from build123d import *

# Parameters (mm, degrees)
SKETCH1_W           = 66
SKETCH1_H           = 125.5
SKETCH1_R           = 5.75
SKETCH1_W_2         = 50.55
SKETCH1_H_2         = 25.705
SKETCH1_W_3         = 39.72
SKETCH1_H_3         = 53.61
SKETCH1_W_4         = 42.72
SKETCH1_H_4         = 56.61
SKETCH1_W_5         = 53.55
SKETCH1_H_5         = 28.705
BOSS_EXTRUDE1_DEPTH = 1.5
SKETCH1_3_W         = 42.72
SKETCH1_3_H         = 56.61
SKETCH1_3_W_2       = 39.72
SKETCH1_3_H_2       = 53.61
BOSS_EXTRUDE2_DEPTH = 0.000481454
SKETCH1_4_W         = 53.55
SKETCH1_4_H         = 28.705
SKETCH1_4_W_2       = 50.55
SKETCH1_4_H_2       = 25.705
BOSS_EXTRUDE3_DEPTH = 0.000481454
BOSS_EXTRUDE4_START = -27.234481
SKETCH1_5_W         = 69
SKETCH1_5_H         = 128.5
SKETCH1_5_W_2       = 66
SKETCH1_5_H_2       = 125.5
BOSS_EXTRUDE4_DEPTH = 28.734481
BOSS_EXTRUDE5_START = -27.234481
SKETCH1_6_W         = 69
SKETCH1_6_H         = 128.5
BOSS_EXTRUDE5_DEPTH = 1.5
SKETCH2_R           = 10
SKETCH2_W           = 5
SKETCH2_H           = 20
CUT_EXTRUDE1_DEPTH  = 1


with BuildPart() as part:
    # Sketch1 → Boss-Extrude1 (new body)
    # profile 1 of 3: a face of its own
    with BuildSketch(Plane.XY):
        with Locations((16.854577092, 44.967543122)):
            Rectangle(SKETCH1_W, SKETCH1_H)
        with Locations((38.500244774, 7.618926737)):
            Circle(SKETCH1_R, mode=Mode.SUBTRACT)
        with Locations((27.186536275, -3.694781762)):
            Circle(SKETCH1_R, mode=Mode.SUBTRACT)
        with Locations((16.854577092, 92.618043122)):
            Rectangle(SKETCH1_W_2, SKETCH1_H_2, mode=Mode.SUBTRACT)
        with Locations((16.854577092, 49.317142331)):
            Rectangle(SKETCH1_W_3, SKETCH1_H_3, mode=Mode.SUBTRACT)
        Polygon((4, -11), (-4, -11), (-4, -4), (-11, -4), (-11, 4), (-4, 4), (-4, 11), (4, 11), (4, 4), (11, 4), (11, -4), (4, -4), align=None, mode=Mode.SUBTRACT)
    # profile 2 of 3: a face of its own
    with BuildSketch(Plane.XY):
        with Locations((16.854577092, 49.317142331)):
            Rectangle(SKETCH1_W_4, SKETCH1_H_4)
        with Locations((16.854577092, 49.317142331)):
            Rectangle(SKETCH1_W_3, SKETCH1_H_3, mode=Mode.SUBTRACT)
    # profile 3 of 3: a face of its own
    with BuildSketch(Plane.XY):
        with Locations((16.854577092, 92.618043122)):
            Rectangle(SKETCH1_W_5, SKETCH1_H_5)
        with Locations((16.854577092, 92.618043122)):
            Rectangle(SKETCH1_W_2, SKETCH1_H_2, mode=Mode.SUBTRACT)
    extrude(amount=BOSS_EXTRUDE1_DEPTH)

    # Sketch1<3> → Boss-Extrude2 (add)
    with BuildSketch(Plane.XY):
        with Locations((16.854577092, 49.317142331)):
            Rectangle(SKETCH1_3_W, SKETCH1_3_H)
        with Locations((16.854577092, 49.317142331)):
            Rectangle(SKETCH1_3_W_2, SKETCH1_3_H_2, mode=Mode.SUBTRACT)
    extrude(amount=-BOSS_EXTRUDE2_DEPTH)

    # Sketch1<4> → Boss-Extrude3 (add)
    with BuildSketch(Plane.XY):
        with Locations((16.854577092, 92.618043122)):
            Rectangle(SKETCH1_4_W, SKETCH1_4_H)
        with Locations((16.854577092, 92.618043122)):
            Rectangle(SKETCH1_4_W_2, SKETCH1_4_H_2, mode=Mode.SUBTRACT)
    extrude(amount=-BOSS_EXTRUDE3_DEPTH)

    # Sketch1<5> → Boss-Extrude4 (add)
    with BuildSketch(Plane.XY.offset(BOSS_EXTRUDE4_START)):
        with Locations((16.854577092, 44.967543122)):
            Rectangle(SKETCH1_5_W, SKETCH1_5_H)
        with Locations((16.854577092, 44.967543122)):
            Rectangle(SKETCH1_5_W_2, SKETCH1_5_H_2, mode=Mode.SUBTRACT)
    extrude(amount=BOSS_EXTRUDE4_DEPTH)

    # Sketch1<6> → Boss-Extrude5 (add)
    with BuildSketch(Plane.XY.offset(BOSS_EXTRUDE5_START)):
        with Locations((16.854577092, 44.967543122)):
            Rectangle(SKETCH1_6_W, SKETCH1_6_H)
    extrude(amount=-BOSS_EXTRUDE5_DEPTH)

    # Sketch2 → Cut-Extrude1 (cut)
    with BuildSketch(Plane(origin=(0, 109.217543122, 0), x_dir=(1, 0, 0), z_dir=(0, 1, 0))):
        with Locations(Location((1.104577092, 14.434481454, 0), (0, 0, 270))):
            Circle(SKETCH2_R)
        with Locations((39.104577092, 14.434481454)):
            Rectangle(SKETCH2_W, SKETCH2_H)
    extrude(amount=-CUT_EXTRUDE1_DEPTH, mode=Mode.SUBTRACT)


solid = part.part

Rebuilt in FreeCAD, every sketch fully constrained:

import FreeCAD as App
import Part
import Sketcher


def add_polygon(sketch, points):
    """Adds a closed chain of lines whose ends are joined by coincident constraints."""
    first, n = sketch.GeometryCount, len(points)
    for a, b in zip(points, points[1:] + points[:1]):
        sketch.addGeometry(Part.LineSegment(App.Vector(*a, 0), App.Vector(*b, 0)), False)
    for i in range(n):
        sketch.addConstraint(Sketcher.Constraint("Coincident", first + i, 2, first + (i + 1) % n, 1))

doc = App.newDocument("Part")
body = doc.addObject("PartDesign::Body", "Body")

# Sketch on XY plane
sketch1 = doc.addObject("Sketcher::SketchObject", "Sketch")
body.addObject(sketch1)
sketch1.AttachmentSupport = (doc.XY_Plane, [""])
sketch1.MapMode = "FlatFace"
add_polygon(sketch1, [(-16, 108), (-16, -18), (50, -18), (50, 108)])  # lines 0-3
add_polygon(sketch1, [(4, -4), (4, -11), (-4, -11), (-4, -4), (-11, -4), (-11, 4), (-4, 4), (-4, 11), (4, 11), (4, 4), (11, 4), (11, -4)])  # lines 4-15
sketch1.addGeometry(Part.Circle(App.Vector(27, -4, 0), App.Vector(0, 0, 1), 6), False)  # 16
sketch1.addGeometry(Part.Circle(App.Vector(39, 8, 0), App.Vector(0, 0, 1), 6), False)  # 17
add_polygon(sketch1, [(37, 23), (-3, 23), (-3, 76), (37, 76)])  # lines 18-21
add_polygon(sketch1, [(42, 80), (-8, 80), (-8, 105), (42, 105)])  # lines 22-25
sketch1.addConstraint([
    Sketcher.Constraint("Vertical", 0),
    Sketcher.Constraint("Horizontal", 1),
    Sketcher.Constraint("Vertical", 2),
    Sketcher.Constraint("Horizontal", 3),
    Sketcher.Constraint("Vertical", 4),
    Sketcher.Constraint("Horizontal", 5),
    Sketcher.Constraint("Vertical", 6),
    Sketcher.Constraint("Horizontal", 7),
    Sketcher.Constraint("Vertical", 8),
    Sketcher.Constraint("Horizontal", 9),
    Sketcher.Constraint("Vertical", 10),
    Sketcher.Constraint("Horizontal", 11),
    Sketcher.Constraint("Vertical", 12),
    Sketcher.Constraint("Horizontal", 13),
    Sketcher.Constraint("Vertical", 14),
    Sketcher.Constraint("Horizontal", 15),
    Sketcher.Constraint("Horizontal", 18),
    Sketcher.Constraint("Vertical", 19),
    Sketcher.Constraint("Horizontal", 20),
    Sketcher.Constraint("Vertical", 21),
    Sketcher.Constraint("Horizontal", 22),
    Sketcher.Constraint("Vertical", 23),
    Sketcher.Constraint("Horizontal", 24),
    Sketcher.Constraint("Vertical", 25),
    Sketcher.Constraint("Equal", 16, 17),
    Sketcher.Constraint("Symmetric", 4, 2, 10, 2, -1, 1),
    Sketcher.Constraint("Symmetric", 6, 2, 12, 2, -1, 1),
    Sketcher.Constraint("Symmetric", 8, 2, 14, 2, -1, 1),
    Sketcher.Constraint("Symmetric", 9, 2, 12, 2, -2),
    Sketcher.Constraint("Equal", 15, 4),
    Sketcher.Constraint("Equal", 11, 8),
    Sketcher.Constraint("Diameter", 16, 11.5),
    Sketcher.Constraint("DistanceX", 1, 1, 1, 2, 66.0),
    Sketcher.Constraint("DistanceX", 5, 2, 5, 1, 8.0),
    Sketcher.Constraint("DistanceX", 7, 2, 7, 1, 7.0),
    Sketcher.Constraint("DistanceY", 0, 2, 0, 1, 125.5),
    Sketcher.Constraint("DistanceX", 18, 2, 18, 1, 39.72),
    Sketcher.Constraint("DistanceX", 22, 2, 22, 1, 50.55),
    Sketcher.Constraint("DistanceY", 19, 1, 19, 2, 53.61),
    Sketcher.Constraint("DistanceY", 23, 1, 23, 2, 25.705),
    Sketcher.Constraint("DistanceX", 3, 2, 19, 2, 13.14),
    Sketcher.Constraint("DistanceX", 22, 2, 19, 2, 5.415),
    Sketcher.Constraint("DistanceY", 22, 2, 3, 2, 27.952),
    Sketcher.Constraint("DistanceY", 19, 2, 3, 2, 31.595401),
    Sketcher.Constraint("DistanceY", 16, 3, -1, 1, 3.694782),
    Sketcher.Constraint("DistanceX", 16, 3, 17, 3, 11.313708),
    Sketcher.Constraint("DistanceY", 16, 3, 17, 3, 11.313708),
    Sketcher.Constraint("DistanceX", 0, 2, 16, 3, 43.331959),
    Sketcher.Constraint("DistanceX", -1, 1, 16, 3, 27.186536),
    Sketcher.Constraint("DistanceY", 0, 2, -1, 1, 17.782457),
])
pad1 = doc.addObject("PartDesign::Pad", "Pad")
body.addObject(pad1)
pad1.Profile = sketch1
pad1.Length = 1.5

# Sketch on XY plane
sketch2 = doc.addObject("Sketcher::SketchObject", "Sketch001")
body.addObject(sketch2)
sketch2.AttachmentSupport = (doc.XY_Plane, [""])
sketch2.MapMode = "FlatFace"
add_polygon(sketch2, [(-5, 78), (-5, 21), (38, 21), (38, 78)])  # lines 0-3
add_polygon(sketch2, [(37, 23), (-3, 23), (-3, 76), (37, 76)])  # lines 4-7
sketch2.addConstraint([
    Sketcher.Constraint("Vertical", 0),
    Sketcher.Constraint("Horizontal", 1),
    Sketcher.Constraint("Vertical", 2),
    Sketcher.Constraint("Horizontal", 3),
    Sketcher.Constraint("Horizontal", 4),
    Sketcher.Constraint("Vertical", 5),
    Sketcher.Constraint("Horizontal", 6),
    Sketcher.Constraint("Vertical", 7),
    Sketcher.Constraint("DistanceX", 1, 1, 1, 2, 42.72),
    Sketcher.Constraint("DistanceX", 4, 2, 4, 1, 39.72),
    Sketcher.Constraint("DistanceY", 0, 2, 0, 1, 56.61),
    Sketcher.Constraint("DistanceY", 5, 1, 5, 2, 53.61),
    Sketcher.Constraint("DistanceX", 0, 2, 4, 2, 1.5),
    Sketcher.Constraint("DistanceY", 0, 2, 4, 2, 1.5),
    Sketcher.Constraint("DistanceX", 0, 2, -1, 1, 4.505423),
    Sketcher.Constraint("DistanceY", -1, 1, 0, 2, 21.012142),
])
pad2 = doc.addObject("PartDesign::Pad", "Pad001")
body.addObject(pad2)
pad2.Profile = sketch2
pad2.Length = 0.000481
pad2.Reversed = True

# Sketch on XY plane
sketch3 = doc.addObject("Sketcher::SketchObject", "Sketch002")
body.addObject(sketch3)
sketch3.AttachmentSupport = (doc.XY_Plane, [""])
sketch3.MapMode = "FlatFace"
add_polygon(sketch3, [(-10, 107), (-10, 78), (44, 78), (44, 107)])  # lines 0-3
add_polygon(sketch3, [(42, 80), (-8, 80), (-8, 105), (42, 105)])  # lines 4-7
sketch3.addConstraint([
    Sketcher.Constraint("Vertical", 0),
    Sketcher.Constraint("Horizontal", 1),
    Sketcher.Constraint("Vertical", 2),
    Sketcher.Constraint("Horizontal", 3),
    Sketcher.Constraint("Horizontal", 4),
    Sketcher.Constraint("Vertical", 5),
    Sketcher.Constraint("Horizontal", 6),
    Sketcher.Constraint("Vertical", 7),
    Sketcher.Constraint("DistanceX", 1, 1, 1, 2, 53.55),
    Sketcher.Constraint("DistanceX", 4, 2, 4, 1, 50.55),
    Sketcher.Constraint("DistanceX", 0, 2, 4, 2, 1.5),
    Sketcher.Constraint("DistanceY", 0, 2, 4, 2, 1.5),
    Sketcher.Constraint("DistanceY", 5, 2, 3, 2, 1.5),
    Sketcher.Constraint("DistanceY", 0, 2, 0, 1, 28.705),
    Sketcher.Constraint("DistanceX", 0, 2, -1, 1, 9.920423),
    Sketcher.Constraint("DistanceY", -1, 1, 0, 2, 78.265543),
])
pad3 = doc.addObject("PartDesign::Pad", "Pad002")
body.addObject(pad3)
pad3.Profile = sketch3
pad3.Length = 0.000481
pad3.Reversed = True

# Sketch on XY plane
sketch4 = doc.addObject("Sketcher::SketchObject", "Sketch003")
body.addObject(sketch4)
sketch4.AttachmentSupport = (doc.XY_Plane, [""])
sketch4.MapMode = "FlatFace"
sketch4.AttachmentOffset = App.Placement(App.Vector(0, 0, -27.234481), App.Rotation())
add_polygon(sketch4, [(-18, 109), (-18, -19), (51, -19), (51, 109)])  # lines 0-3
add_polygon(sketch4, [(50, -18), (-16, -18), (-16, 108), (50, 108)])  # lines 4-7
sketch4.addConstraint([
    Sketcher.Constraint("Vertical", 0),
    Sketcher.Constraint("Horizontal", 1),
    Sketcher.Constraint("Vertical", 2),
    Sketcher.Constraint("Horizontal", 3),
    Sketcher.Constraint("Horizontal", 4),
    Sketcher.Constraint("Vertical", 5),
    Sketcher.Constraint("Horizontal", 6),
    Sketcher.Constraint("Vertical", 7),
    Sketcher.Constraint("DistanceX", 1, 1, 1, 2, 69.0),
    Sketcher.Constraint("DistanceX", 4, 2, 4, 1, 66.0),
    Sketcher.Constraint("DistanceY", 0, 2, 0, 1, 128.5),
    Sketcher.Constraint("DistanceY", 5, 1, 5, 2, 125.5),
    Sketcher.Constraint("DistanceY", 4, 2, 3, 2, 127.0),
    Sketcher.Constraint("DistanceX", 0, 2, 4, 2, 1.5),
    Sketcher.Constraint("DistanceX", 0, 2, -1, 1, 17.645423),
    Sketcher.Constraint("DistanceY", 0, 2, -1, 1, 19.282457),
])
pad4 = doc.addObject("PartDesign::Pad", "Pad003")
body.addObject(pad4)
pad4.Profile = sketch4
pad4.Length = 28.734481

# Sketch on XY plane
sketch5 = doc.addObject("Sketcher::SketchObject", "Sketch004")
body.addObject(sketch5)
sketch5.AttachmentSupport = (doc.XY_Plane, [""])
sketch5.MapMode = "FlatFace"
sketch5.AttachmentOffset = App.Placement(App.Vector(0, 0, -27.234481), App.Rotation())
add_polygon(sketch5, [(-18, 109), (-18, -19), (51, -19), (51, 109)])  # lines 0-3
sketch5.addConstraint([
    Sketcher.Constraint("Vertical", 0),
    Sketcher.Constraint("Horizontal", 1),
    Sketcher.Constraint("Vertical", 2),
    Sketcher.Constraint("Horizontal", 3),
    Sketcher.Constraint("DistanceX", 1, 1, 1, 2, 69.0),
    Sketcher.Constraint("DistanceY", 0, 2, 0, 1, 128.5),
    Sketcher.Constraint("DistanceX", 0, 2, -1, 1, 17.645423),
    Sketcher.Constraint("DistanceY", 0, 2, -1, 1, 19.282457),
])
pad5 = doc.addObject("PartDesign::Pad", "Pad004")
body.addObject(pad5)
pad5.Profile = sketch5
pad5.Length = 1.5
pad5.Reversed = True

# Sketch on XZ plane
sketch6 = doc.addObject("Sketcher::SketchObject", "Sketch005")
body.addObject(sketch6)
sketch6.AttachmentSupport = (doc.XZ_Plane, [""])
sketch6.MapMode = "FlatFace"
sketch6.AttachmentOffset = App.Placement(App.Vector(0, 0, -109.217543), App.Rotation())
sketch6.addGeometry(Part.Circle(App.Vector(1, -14, 0), App.Vector(0, 0, 1), 10), False)  # 0
add_polygon(sketch6, [(37, -24), (37, -4), (42, -4), (42, -24)])  # lines 1-4
sketch6.addConstraint([
    Sketcher.Constraint("Vertical", 1),
    Sketcher.Constraint("Horizontal", 2),
    Sketcher.Constraint("Vertical", 3),
    Sketcher.Constraint("Horizontal", 4),
    Sketcher.Constraint("Diameter", 0, 20.0),
    Sketcher.Constraint("DistanceX", 2, 1, 2, 2, 5.0),
    Sketcher.Constraint("DistanceY", 1, 1, 1, 2, 20.0),
    Sketcher.Constraint("DistanceY", 0, 3, 1, 2, 10.0),
    Sketcher.Constraint("DistanceX", 0, 3, 1, 2, 35.5),
    Sketcher.Constraint("DistanceY", 0, 3, -1, 1, 14.434481),
    Sketcher.Constraint("DistanceX", -1, 1, 0, 3, 1.104577),
])
pocket1 = doc.addObject("PartDesign::Pocket", "Pocket")
body.addObject(pocket1)
pocket1.Profile = sketch6
pocket1.Length = 1
pocket1.Reversed = True

doc.recompute()
